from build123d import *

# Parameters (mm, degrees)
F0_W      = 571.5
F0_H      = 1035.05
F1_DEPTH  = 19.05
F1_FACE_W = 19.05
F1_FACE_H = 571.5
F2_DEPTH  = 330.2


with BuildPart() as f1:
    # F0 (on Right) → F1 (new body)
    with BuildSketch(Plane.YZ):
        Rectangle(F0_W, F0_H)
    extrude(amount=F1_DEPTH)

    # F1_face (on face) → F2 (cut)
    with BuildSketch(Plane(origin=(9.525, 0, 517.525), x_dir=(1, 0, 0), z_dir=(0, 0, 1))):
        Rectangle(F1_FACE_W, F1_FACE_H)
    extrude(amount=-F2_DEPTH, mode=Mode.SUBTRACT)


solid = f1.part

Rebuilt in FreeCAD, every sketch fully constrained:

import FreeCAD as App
import Part
import Sketcher

V = App.Vector
Q = App.Units.Quantity

doc = App.newDocument("Part")
body = doc.addObject("PartDesign::Body", "Body")

# Sketch on YZ plane
sketch1 = body.newObject("Sketcher::SketchObject", "Sketch")
sketch1.AttachmentSupport = (doc.getObject("YZ_Plane"), [""])
sketch1.MapMode = "FlatFace"
sketch1.addGeometry(Part.LineSegment(V(-286, 518, 0), V(-286, -518, 0)), False)
sketch1.addGeometry(Part.LineSegment(V(-286, -518, 0), V(286, -518, 0)), False)
sketch1.addGeometry(Part.LineSegment(V(286, -518, 0), V(286, 518, 0)), False)
sketch1.addGeometry(Part.LineSegment(V(286, 518, 0), V(-286, 518, 0)), False)
sketch1.addConstraint(Sketcher.Constraint("Coincident", 0, 2, 1, 1))
sketch1.addConstraint(Sketcher.Constraint("Coincident", 1, 2, 2, 1))
sketch1.addConstraint(Sketcher.Constraint("Coincident", 2, 2, 3, 1))
sketch1.addConstraint(Sketcher.Constraint("Coincident", 3, 2, 0, 1))
sketch1.addConstraint(Sketcher.Constraint("Vertical", 0))
sketch1.addConstraint(Sketcher.Constraint("Horizontal", 1))
sketch1.addConstraint(Sketcher.Constraint("Vertical", 2))
sketch1.addConstraint(Sketcher.Constraint("Horizontal", 3))
sketch1.addConstraint(Sketcher.Constraint("Symmetric", 0, 2, 2, 2, -1, 1))
sketch1.addConstraint(Sketcher.Constraint("DistanceX", 1, 1, 1, 2, Q("22.5 in")))
sketch1.addConstraint(Sketcher.Constraint("DistanceY", 0, 2, 0, 1, Q("40.75 in")))
pad1 = body.newObject("PartDesign::Pad", "Pad")
pad1.Profile = sketch1
pad1.Length = Q("0.75 in")

# Sketch on XY plane
sketch2 = body.newObject("Sketcher::SketchObject", "Sketch001")
sketch2.AttachmentSupport = (doc.getObject("XY_Plane"), [""])
sketch2.MapMode = "FlatFace"
sketch2.AttachmentOffset = App.Placement(V(0, 0, 20.375 * 25.4), App.Rotation())
sketch2.addGeometry(Part.LineSegment(V(0, 286, 0), V(0, -286, 0)), False)
sketch2.addGeometry(Part.LineSegment(V(0, -286, 0), V(19, -286, 0)), False)
sketch2.addGeometry(Part.LineSegment(V(19, -286, 0), V(19, 286, 0)), False)
sketch2.addGeometry(Part.LineSegment(V(19, 286, 0), V(0, 286, 0)), False)
sketch2.addConstraint(Sketcher.Constraint("Coincident", 0, 2, 1, 1))
sketch2.addConstraint(Sketcher.Constraint("Coincident", 1, 2, 2, 1))
sketch2.addConstraint(Sketcher.Constraint("Coincident", 2, 2, 3, 1))
sketch2.addConstraint(Sketcher.Constraint("Coincident", 3, 2, 0, 1))
sketch2.addConstraint(Sketcher.Constraint("Vertical", 0))
sketch2.addConstraint(Sketcher.Constraint("Horizontal", 1))
sketch2.addConstraint(Sketcher.Constraint("Vertical", 2))
sketch2.addConstraint(Sketcher.Constraint("Horizontal", 3))
sketch2.addConstraint(Sketcher.Constraint("Symmetric", 0, 2, 3, 2, -1, 1))
sketch2.addConstraint(Sketcher.Constraint("DistanceY", 0, 2, 0, 1, Q("22.5 in")))
sketch2.addConstraint(Sketcher.Constraint("DistanceX", 1, 1, 1, 2, Q("0.75 in")))
pocket1 = body.newObject("PartDesign::Pocket", "Pocket")
pocket1.Profile = sketch2
pocket1.Length = Q("13 in")

doc.recompute()
